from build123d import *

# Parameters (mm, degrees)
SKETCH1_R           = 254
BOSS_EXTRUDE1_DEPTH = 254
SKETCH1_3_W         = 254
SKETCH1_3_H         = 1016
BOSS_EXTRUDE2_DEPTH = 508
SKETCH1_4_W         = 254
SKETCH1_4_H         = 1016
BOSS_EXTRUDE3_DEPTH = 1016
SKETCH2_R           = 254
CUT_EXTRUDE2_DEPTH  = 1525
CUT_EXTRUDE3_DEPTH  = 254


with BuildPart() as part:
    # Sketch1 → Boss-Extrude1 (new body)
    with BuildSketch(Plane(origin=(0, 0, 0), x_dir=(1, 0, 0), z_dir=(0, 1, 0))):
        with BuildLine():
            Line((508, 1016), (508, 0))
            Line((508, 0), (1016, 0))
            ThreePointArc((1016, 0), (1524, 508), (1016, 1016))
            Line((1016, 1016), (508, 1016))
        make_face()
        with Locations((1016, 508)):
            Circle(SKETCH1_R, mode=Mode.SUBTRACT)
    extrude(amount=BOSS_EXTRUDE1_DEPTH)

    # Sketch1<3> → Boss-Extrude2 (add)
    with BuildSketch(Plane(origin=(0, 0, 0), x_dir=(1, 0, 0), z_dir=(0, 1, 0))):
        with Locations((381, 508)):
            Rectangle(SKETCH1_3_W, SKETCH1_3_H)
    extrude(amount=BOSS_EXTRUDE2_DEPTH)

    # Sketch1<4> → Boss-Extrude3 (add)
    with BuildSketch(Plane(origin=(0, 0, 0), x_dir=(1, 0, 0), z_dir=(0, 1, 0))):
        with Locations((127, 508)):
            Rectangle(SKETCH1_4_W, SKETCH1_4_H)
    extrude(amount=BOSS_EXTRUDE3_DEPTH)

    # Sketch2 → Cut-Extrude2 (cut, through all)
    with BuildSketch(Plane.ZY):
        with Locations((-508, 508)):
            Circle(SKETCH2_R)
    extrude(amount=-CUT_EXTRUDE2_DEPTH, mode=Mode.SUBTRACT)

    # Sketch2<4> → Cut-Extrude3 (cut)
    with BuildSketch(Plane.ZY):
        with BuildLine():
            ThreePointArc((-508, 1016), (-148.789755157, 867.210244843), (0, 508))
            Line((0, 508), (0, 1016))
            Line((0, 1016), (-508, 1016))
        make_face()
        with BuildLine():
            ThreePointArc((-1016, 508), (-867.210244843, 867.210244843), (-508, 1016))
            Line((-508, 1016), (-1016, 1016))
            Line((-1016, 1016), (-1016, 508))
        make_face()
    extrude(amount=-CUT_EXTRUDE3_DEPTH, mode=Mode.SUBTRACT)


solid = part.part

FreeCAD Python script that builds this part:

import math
import FreeCAD as App
import Part
import Sketcher
Q = App.Units.Quantity

doc = App.newDocument("Part")
body = doc.addObject("PartDesign::Body", "Body")

# Sketch on XZ plane
sketch1 = doc.addObject("Sketcher::SketchObject", "Sketch")
body.addObject(sketch1)
sketch1.AttachmentSupport = (doc.XZ_Plane, [""])
sketch1.MapMode = "FlatFace"
sketch1.addGeometry([
    Part.LineSegment(App.Vector(508, -1016, 0), App.Vector(508, 0, 0)),  # 0
    Part.LineSegment(App.Vector(508, 0, 0), App.Vector(1016, 0, 0)),  # 1
    Part.ArcOfCircle(Part.Circle(App.Vector(1016, -508, 0), App.Vector(0, 0, 1), 508), math.radians(-90), math.radians(90)),  # 2
    Part.LineSegment(App.Vector(1016, -1016, 0), App.Vector(508, -1016, 0)),  # 3
    Part.Circle(App.Vector(1016, -508, 0), App.Vector(0, 0, 1), 254),  # 4
], False)
sketch1.addConstraint([
    Sketcher.Constraint("Coincident", 0, 2, 1, 1),
    Sketcher.Constraint("Tangent", 1, 2, 2, 2),
    Sketcher.Constraint("Tangent", 2, 1, 3, 1),
    Sketcher.Constraint("Coincident", 3, 2, 0, 1),
    Sketcher.Constraint("Vertical", 0),
    Sketcher.Constraint("Horizontal", 1),
    Sketcher.Constraint("Horizontal", 3),
    Sketcher.Constraint("Coincident", 4, 3, 2, 3),
    Sketcher.Constraint("PointOnObject", 0, 2, -1),
    Sketcher.Constraint("Diameter", 4, Q("20 in")),
    Sketcher.Constraint("Radius", 2, Q("20 in")),
    Sketcher.Constraint("DistanceX", 1, 1, 1, 2, Q("20 in")),
    Sketcher.Constraint("DistanceX", -1, 1, 2, 3, Q("40 in")),
])
pad1 = doc.addObject("PartDesign::Pad", "Pad")
body.addObject(pad1)
pad1.Profile = sketch1
pad1.Length = Q("10 in")
pad1.Reversed = True

# Sketch on XZ plane
sketch2 = doc.addObject("Sketcher::SketchObject", "Sketch001")
body.addObject(sketch2)
sketch2.AttachmentSupport = (doc.XZ_Plane, [""])
sketch2.MapMode = "FlatFace"
sketch2.addGeometry([
    Part.LineSegment(App.Vector(254, -1016, 0), App.Vector(254, 0, 0)),
    Part.LineSegment(App.Vector(254, 0, 0), App.Vector(508, 0, 0)),
    Part.LineSegment(App.Vector(508, 0, 0), App.Vector(508, -1016, 0)),
    Part.LineSegment(App.Vector(508, -1016, 0), App.Vector(254, -1016, 0)),
], False)
sketch2.addConstraint([
    Sketcher.Constraint("Coincident", 0, 2, 1, 1),
    Sketcher.Constraint("Coincident", 1, 2, 2, 1),
    Sketcher.Constraint("Coincident", 2, 2, 3, 1),
    Sketcher.Constraint("Coincident", 3, 2, 0, 1),
    Sketcher.Constraint("Vertical", 0),
    Sketcher.Constraint("Horizontal", 1),
    Sketcher.Constraint("Vertical", 2),
    Sketcher.Constraint("Horizontal", 3),
    Sketcher.Constraint("PointOnObject", 0, 2, -1),
    Sketcher.Constraint("DistanceX", 1, 1, 1, 2, Q("10 in")),
    Sketcher.Constraint("DistanceY", 0, 1, 0, 2, Q("40 in")),
    Sketcher.Constraint("DistanceX", -1, 1, 0, 2, Q("10 in")),
])
pad2 = doc.addObject("PartDesign::Pad", "Pad001")
body.addObject(pad2)
pad2.Profile = sketch2
pad2.Length = Q("20 in")
pad2.Reversed = True

# Sketch on XZ plane
sketch3 = doc.addObject("Sketcher::SketchObject", "Sketch002")
body.addObject(sketch3)
sketch3.AttachmentSupport = (doc.XZ_Plane, [""])
sketch3.MapMode = "FlatFace"
sketch3.addGeometry([
    Part.LineSegment(App.Vector(0, -1016, 0), App.Vector(0, 0, 0)),
    Part.LineSegment(App.Vector(0, 0, 0), App.Vector(254, 0, 0)),
    Part.LineSegment(App.Vector(254, 0, 0), App.Vector(254, -1016, 0)),
    Part.LineSegment(App.Vector(254, -1016, 0), App.Vector(0, -1016, 0)),
], False)
sketch3.addConstraint([
    Sketcher.Constraint("Coincident", 0, 2, 1, 1),
    Sketcher.Constraint("Coincident", 1, 2, 2, 1),
    Sketcher.Constraint("Coincident", 2, 2, 3, 1),
    Sketcher.Constraint("Coincident", 3, 2, 0, 1),
    Sketcher.Constraint("Vertical", 0),
    Sketcher.Constraint("Horizontal", 1),
    Sketcher.Constraint("Vertical", 2),
    Sketcher.Constraint("Horizontal", 3),
    Sketcher.Constraint("Coincident", 0, 2, -1, 1),
    Sketcher.Constraint("DistanceX", 1, 1, 1, 2, Q("10 in")),
    Sketcher.Constraint("DistanceY", 0, 1, 0, 2, Q("40 in")),
])
pad3 = doc.addObject("PartDesign::Pad", "Pad002")
body.addObject(pad3)
pad3.Profile = sketch3
pad3.Length = Q("40 in")
pad3.Reversed = True

# Sketch on YZ plane
sketch4 = doc.addObject("Sketcher::SketchObject", "Sketch003")
body.addObject(sketch4)
sketch4.AttachmentSupport = (doc.YZ_Plane, [""])
sketch4.MapMode = "FlatFace"
sketch4.addGeometry(Part.Circle(App.Vector(508, -508, 0), App.Vector(0, 0, 1), 254), False)
sketch4.addConstraint([
    Sketcher.Constraint("Diameter", 0, Q("20 in")),
    Sketcher.Constraint("DistanceX", -1, 1, 0, 3, Q("20 in")),
    Sketcher.Constraint("DistanceY", 0, 3, -1, 1, Q("20 in")),
])
pocket1 = doc.addObject("PartDesign::Pocket", "Pocket")
body.addObject(pocket1)
pocket1.Profile = sketch4
pocket1.Type = "ThroughAll"
pocket1.Reversed = True

# Sketch on YZ plane
sketch5 = doc.addObject("Sketcher::SketchObject", "Sketch004")
body.addObject(sketch5)
sketch5.AttachmentSupport = (doc.YZ_Plane, [""])
sketch5.MapMode = "FlatFace"
sketch5.addGeometry([
    Part.ArcOfCircle(Part.Circle(App.Vector(508, -508, 0), App.Vector(0, 0, 1), 508), math.radians(0), math.radians(90)),  # 0
    Part.LineSegment(App.Vector(508, 0, 0), App.Vector(1016, 0, 0)),  # 1
    Part.LineSegment(App.Vector(1016, 0, 0), App.Vector(1016, -508, 0)),  # 2
    Part.ArcOfCircle(Part.Circle(App.Vector(508, -508, 0), App.Vector(0, 0, 1), 508), math.radians(-90), math.radians(0)),  # 3
    Part.LineSegment(App.Vector(1016, -508, 0), App.Vector(1016, -1016, 0)),  # 4
    Part.LineSegment(App.Vector(1016, -1016, 0), App.Vector(508, -1016, 0)),  # 5
], False)
sketch5.addConstraint([
    Sketcher.Constraint("Tangent", 0, 2, 1, 1),
    Sketcher.Constraint("Coincident", 1, 2, 2, 1),
    Sketcher.Constraint("Tangent", 2, 2, 0, 1),
    Sketcher.Constraint("Tangent", 3, 2, 4, 1),
    Sketcher.Constraint("Coincident", 4, 2, 5, 1),
    Sketcher.Constraint("Tangent", 5, 2, 3, 1),
    Sketcher.Constraint("Horizontal", 1),
    Sketcher.Constraint("Vertical", 2),
    Sketcher.Constraint("Vertical", 4),
    Sketcher.Constraint("Horizontal", 5),
    Sketcher.Constraint("Coincident", 3, 3, 0, 3),
    Sketcher.Constraint("Equal", 0, 3),
    Sketcher.Constraint("PointOnObject", 0, 2, -1),
    Sketcher.Constraint("Radius", 0, Q("20 in")),
    Sketcher.Constraint("DistanceX", -1, 1, 0, 3, Q("20 in")),
])
pocket2 = doc.addObject("PartDesign::Pocket", "Pocket001")
body.addObject(pocket2)
pocket2.Profile = sketch5
pocket2.Length = Q("10 in")
pocket2.Reversed = True

doc.recompute()
